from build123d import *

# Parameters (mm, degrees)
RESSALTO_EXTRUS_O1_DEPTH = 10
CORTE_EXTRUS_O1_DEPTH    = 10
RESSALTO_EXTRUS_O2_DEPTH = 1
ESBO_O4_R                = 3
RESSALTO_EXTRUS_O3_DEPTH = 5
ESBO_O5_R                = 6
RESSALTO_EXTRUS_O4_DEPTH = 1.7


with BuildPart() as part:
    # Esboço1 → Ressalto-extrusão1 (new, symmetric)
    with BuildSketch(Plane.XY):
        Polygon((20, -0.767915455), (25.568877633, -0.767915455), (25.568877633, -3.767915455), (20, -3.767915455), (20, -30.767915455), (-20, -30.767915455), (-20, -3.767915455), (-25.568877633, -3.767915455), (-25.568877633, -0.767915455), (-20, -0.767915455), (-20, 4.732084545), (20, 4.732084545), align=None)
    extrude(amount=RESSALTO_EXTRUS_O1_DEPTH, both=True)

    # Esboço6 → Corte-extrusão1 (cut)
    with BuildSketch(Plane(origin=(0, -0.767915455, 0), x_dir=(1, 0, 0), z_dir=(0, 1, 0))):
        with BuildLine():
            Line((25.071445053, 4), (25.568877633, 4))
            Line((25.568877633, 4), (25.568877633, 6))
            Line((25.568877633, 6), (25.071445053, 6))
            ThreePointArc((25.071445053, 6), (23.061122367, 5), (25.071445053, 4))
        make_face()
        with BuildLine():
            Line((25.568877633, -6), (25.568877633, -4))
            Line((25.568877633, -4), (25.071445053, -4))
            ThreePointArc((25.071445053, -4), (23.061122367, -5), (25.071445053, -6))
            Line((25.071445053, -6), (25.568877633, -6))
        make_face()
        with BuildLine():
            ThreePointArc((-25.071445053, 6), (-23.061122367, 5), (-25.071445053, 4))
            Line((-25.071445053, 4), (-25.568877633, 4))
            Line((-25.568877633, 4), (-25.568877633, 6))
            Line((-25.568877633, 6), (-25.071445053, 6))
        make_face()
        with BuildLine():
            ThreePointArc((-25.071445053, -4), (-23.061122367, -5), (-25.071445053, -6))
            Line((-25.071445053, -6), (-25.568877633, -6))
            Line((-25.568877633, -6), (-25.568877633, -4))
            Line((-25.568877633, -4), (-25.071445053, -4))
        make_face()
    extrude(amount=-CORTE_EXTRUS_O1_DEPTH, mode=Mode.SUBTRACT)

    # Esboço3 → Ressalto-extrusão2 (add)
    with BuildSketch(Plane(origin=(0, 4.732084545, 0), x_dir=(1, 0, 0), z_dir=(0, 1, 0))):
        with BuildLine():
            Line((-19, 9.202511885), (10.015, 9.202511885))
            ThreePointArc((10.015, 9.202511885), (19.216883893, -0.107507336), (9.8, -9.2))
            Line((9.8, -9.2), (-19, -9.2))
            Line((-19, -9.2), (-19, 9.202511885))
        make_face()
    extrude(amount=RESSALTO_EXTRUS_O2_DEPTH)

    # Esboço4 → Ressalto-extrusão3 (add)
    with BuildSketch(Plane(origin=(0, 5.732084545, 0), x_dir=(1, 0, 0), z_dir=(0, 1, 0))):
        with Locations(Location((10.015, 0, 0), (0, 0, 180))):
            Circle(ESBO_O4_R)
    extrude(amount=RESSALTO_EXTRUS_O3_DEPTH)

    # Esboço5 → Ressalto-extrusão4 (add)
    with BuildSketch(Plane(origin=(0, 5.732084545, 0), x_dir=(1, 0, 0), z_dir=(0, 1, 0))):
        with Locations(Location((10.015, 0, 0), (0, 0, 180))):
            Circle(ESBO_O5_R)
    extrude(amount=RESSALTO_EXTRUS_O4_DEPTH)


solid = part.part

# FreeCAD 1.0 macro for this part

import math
import FreeCAD as App
import Part
import Sketcher
Q = App.Units.Quantity

doc = App.newDocument("Part")
body = doc.addObject("PartDesign::Body", "Body")

sketch1 = doc.addObject("Sketcher::SketchObject", "Sketch")
body.addObject(sketch1)
sketch1.AttachmentSupport = (doc.XY_Plane, [""])
sketch1.MapMode = "FlatFace"
sketch1.addGeometry([
    Part.LineSegment(App.Vector(25.6, -0.8, 0), App.Vector(20, -0.8, 0)),
    Part.LineSegment(App.Vector(20, -0.8, 0), App.Vector(20, 4.7, 0)),
    Part.LineSegment(App.Vector(20, 4.7, 0), App.Vector(-20, 4.7, 0)),
    Part.LineSegment(App.Vector(-20, 4.7, 0), App.Vector(-20, -0.8, 0)),
    Part.LineSegment(App.Vector(-20, -0.8, 0), App.Vector(-25.6, -0.8, 0)),
    Part.LineSegment(App.Vector(-25.6, -0.8, 0), App.Vector(-25.6, -3.8, 0)),
    Part.LineSegment(App.Vector(-25.6, -3.8, 0), App.Vector(-20, -3.8, 0)),
    Part.LineSegment(App.Vector(-20, -3.8, 0), App.Vector(-20, -30.8, 0)),
    Part.LineSegment(App.Vector(-20, -30.8, 0), App.Vector(20, -30.8, 0)),
    Part.LineSegment(App.Vector(20, -30.8, 0), App.Vector(20, -3.8, 0)),
    Part.LineSegment(App.Vector(20, -3.8, 0), App.Vector(25.6, -3.8, 0)),
    Part.LineSegment(App.Vector(25.6, -3.8, 0), App.Vector(25.6, -0.8, 0)),
], False)
sketch1.addConstraint([
    Sketcher.Constraint("Coincident", 0, 2, 1, 1),
    Sketcher.Constraint("Coincident", 1, 2, 2, 1),
    Sketcher.Constraint("Coincident", 2, 2, 3, 1),
    Sketcher.Constraint("Coincident", 3, 2, 4, 1),
    Sketcher.Constraint("Coincident", 4, 2, 5, 1),
    Sketcher.Constraint("Coincident", 5, 2, 6, 1),
    Sketcher.Constraint("Coincident", 6, 2, 7, 1),
    Sketcher.Constraint("Coincident", 7, 2, 8, 1),
    Sketcher.Constraint("Coincident", 8, 2, 9, 1),
    Sketcher.Constraint("Coincident", 9, 2, 10, 1),
    Sketcher.Constraint("Coincident", 10, 2, 11, 1),
    Sketcher.Constraint("Coincident", 11, 2, 0, 1),
    Sketcher.Constraint("Horizontal", 0),
    Sketcher.Constraint("Vertical", 1),
    Sketcher.Constraint("Horizontal", 2),
    Sketcher.Constraint("Vertical", 3),
    Sketcher.Constraint("Horizontal", 4),
    Sketcher.Constraint("Vertical", 5),
    Sketcher.Constraint("Horizontal", 6),
    Sketcher.Constraint("Vertical", 7),
    Sketcher.Constraint("Horizontal", 8),
    Sketcher.Constraint("Vertical", 9),
    Sketcher.Constraint("Horizontal", 10),
    Sketcher.Constraint("Vertical", 11),
    Sketcher.Constraint("Symmetric", 0, 2, 3, 2, -2),
    Sketcher.Constraint("Symmetric", 6, 2, 9, 2, -2),
    Sketcher.Constraint("Vertical", 3, 2, 6, 2),
    Sketcher.Constraint("Equal", 0, 4),
    Sketcher.Constraint("DistanceX", 2, 2, 2, 1, Q("40 mm")),
    Sketcher.Constraint("DistanceY", 5, 2, 5, 1, Q("3 mm")),
    Sketcher.Constraint("DistanceY", 7, 2, 7, 1, Q("27 mm")),
    Sketcher.Constraint("DistanceY", 1, 1, 1, 2, Q("5.5 mm")),
    Sketcher.Constraint("DistanceX", 0, 2, 0, 1, Q("5.568878 mm")),
    Sketcher.Constraint("DistanceY", 0, 2, -1, 1, Q("0.767915 mm")),
])
pad1 = doc.addObject("PartDesign::Pad", "Pad")
body.addObject(pad1)
pad1.Profile = sketch1
pad1.Length = 20
pad1.Midplane = True

sketch2 = doc.addObject("Sketcher::SketchObject", "Sketch001")
body.addObject(sketch2)
sketch2.AttachmentSupport = (doc.XZ_Plane, [""])
sketch2.MapMode = "FlatFace"
sketch2.AttachmentOffset = App.Placement(App.Vector(0, 0, 0.767915), App.Rotation())
sketch2.addGeometry([
    Part.LineSegment(App.Vector(25.07, -4, 0), App.Vector(25.57, -4, 0)),
    Part.LineSegment(App.Vector(25.57, -4, 0), App.Vector(25.57, -6, 0)),
    Part.LineSegment(App.Vector(25.57, -6, 0), App.Vector(25.07, -6, 0)),
    Part.ArcOfCircle(Part.Circle(App.Vector(24.32, -5, 0), App.Vector(0, 0, 1), 1.25), math.radians(53), math.radians(307)),
    Part.LineSegment(App.Vector(25.57, 6, 0), App.Vector(25.57, 4, 0)),
    Part.LineSegment(App.Vector(25.57, 4, 0), App.Vector(25.07, 4, 0)),
    Part.ArcOfCircle(Part.Circle(App.Vector(24.32, 5, 0), App.Vector(0, 0, 1), 1.25), math.radians(53), math.radians(307)),
    Part.LineSegment(App.Vector(25.07, 6, 0), App.Vector(25.57, 6, 0)),
    Part.ArcOfCircle(Part.Circle(App.Vector(-24.32, -5, 0), App.Vector(0, 0, 1), 1.25), math.radians(-127), math.radians(127)),
    Part.LineSegment(App.Vector(-25.07, -6, 0), App.Vector(-25.57, -6, 0)),
    Part.LineSegment(App.Vector(-25.57, -6, 0), App.Vector(-25.57, -4, 0)),
    Part.LineSegment(App.Vector(-25.57, -4, 0), App.Vector(-25.07, -4, 0)),
    Part.ArcOfCircle(Part.Circle(App.Vector(-24.32, 5, 0), App.Vector(0, 0, 1), 1.25), math.radians(-127), math.radians(127)),
    Part.LineSegment(App.Vector(-25.07, 4, 0), App.Vector(-25.57, 4, 0)),
    Part.LineSegment(App.Vector(-25.57, 4, 0), App.Vector(-25.57, 6, 0)),
    Part.LineSegment(App.Vector(-25.57, 6, 0), App.Vector(-25.07, 6, 0)),
], False)
sketch2.addConstraint([
    Sketcher.Constraint("Coincident", 0, 2, 1, 1),
    Sketcher.Constraint("Coincident", 1, 2, 2, 1),
    Sketcher.Constraint("Coincident", 2, 2, 3, 2),
    Sketcher.Constraint("Coincident", 3, 1, 0, 1),
    Sketcher.Constraint("Coincident", 4, 2, 5, 1),
    Sketcher.Constraint("Coincident", 5, 2, 6, 2),
    Sketcher.Constraint("Coincident", 6, 1, 7, 1),
    Sketcher.Constraint("Coincident", 7, 2, 4, 1),
    Sketcher.Constraint("Coincident", 8, 1, 9, 1),
    Sketcher.Constraint("Coincident", 9, 2, 10, 1),
    Sketcher.Constraint("Coincident", 10, 2, 11, 1),
    Sketcher.Constraint("Coincident", 11, 2, 8, 2),
    Sketcher.Constraint("Coincident", 12, 1, 13, 1),
    Sketcher.Constraint("Coincident", 13, 2, 14, 1),
    Sketcher.Constraint("Coincident", 14, 2, 15, 1),
    Sketcher.Constraint("Coincident", 15, 2, 12, 2),
    Sketcher.Constraint("Horizontal", 0),
    Sketcher.Constraint("Vertical", 1),
    Sketcher.Constraint("Horizontal", 2),
    Sketcher.Constraint("Vertical", 4),
    Sketcher.Constraint("Horizontal", 5),
    Sketcher.Constraint("Horizontal", 7),
    Sketcher.Constraint("Horizontal", 9),
    Sketcher.Constraint("Vertical", 10),
    Sketcher.Constraint("Horizontal", 11),
    Sketcher.Constraint("Horizontal", 13),
    Sketcher.Constraint("Vertical", 14),
    Sketcher.Constraint("Horizontal", 15),
    Sketcher.Constraint("Equal", 3, 6),
    Sketcher.Constraint("Equal", 6, 8),
    Sketcher.Constraint("Equal", 8, 12),
    Sketcher.Constraint("Symmetric", 6, 3, 8, 3, -1, 1),
    Sketcher.Constraint("Symmetric", 3, 3, 12, 3, -1, 1),
    Sketcher.Constraint("Symmetric", 7, 2, 9, 2, -1, 1),
    Sketcher.Constraint("Symmetric", 0, 2, 13, 2, -1, 1),
    Sketcher.Constraint("Symmetric", 3, 3, 8, 3, -2),
    Sketcher.Constraint("Symmetric", 1, 2, 9, 2, -2),
    Sketcher.Constraint("Horizontal", 3, 1, 10, 2),
    Sketcher.Constraint("Horizontal", 5, 2, 12, 1),
    Sketcher.Constraint("Horizontal", 7, 2, 14, 2),
    Sketcher.Constraint("Vertical", 2, 2, 3, 1),
    Sketcher.Constraint("DistanceY", 1, 2, 1, 1, Q("2 mm")),
    Sketcher.Constraint("DistanceY", 3, 3, -1, 1, Q("5 mm")),
    Sketcher.Constraint("DistanceX", 8, 3, 3, 3, Q("48.63 mm")),
    Sketcher.Constraint("Radius", 3, Q("1.253878 mm")),
    Sketcher.Constraint("DistanceX", 0, 1, 0, 2, Q("0.497433 mm")),
])
pocket1 = doc.addObject("PartDesign::Pocket", "Pocket")
body.addObject(pocket1)
pocket1.Profile = sketch2
pocket1.Length = 10
pocket1.Reversed = True

sketch3 = doc.addObject("Sketcher::SketchObject", "Sketch002")
body.addObject(sketch3)
sketch3.AttachmentSupport = (doc.XZ_Plane, [""])
sketch3.MapMode = "FlatFace"
sketch3.AttachmentOffset = App.Placement(App.Vector(0, 0, -4.732085), App.Rotation())
sketch3.addGeometry([
    Part.LineSegment(App.Vector(10, -9, 0), App.Vector(-19, -9, 0)),
    Part.LineSegment(App.Vector(-19, -9, 0), App.Vector(-19, 9, 0)),
    Part.LineSegment(App.Vector(-19, 9, 0), App.Vector(10, 9, 0)),
    Part.ArcOfCircle(Part.Circle(App.Vector(10, 0, 0), App.Vector(0, 0, 1), 9), math.radians(-90), math.radians(91)),
], False)
sketch3.addConstraint([
    Sketcher.Constraint("Coincident", 0, 2, 1, 1),
    Sketcher.Constraint("Coincident", 1, 2, 2, 1),
    Sketcher.Constraint("Coincident", 2, 2, 3, 2),
    Sketcher.Constraint("Tangent", 3, 1, 0, 1),
    Sketcher.Constraint("Horizontal", 0),
    Sketcher.Constraint("Vertical", 1),
    Sketcher.Constraint("Horizontal", 2),
    Sketcher.Constraint("PointOnObject", 3, 3, -1),
    Sketcher.Constraint("DistanceX", 2, 1, 2, 2, Q("28.8 mm")),
    Sketcher.Constraint("DistanceX", 0, 2, -1, 1, Q("19 mm")),
    Sketcher.Constraint("DistanceY", -1, 1, 1, 2, Q("9.2 mm")),
    Sketcher.Constraint("DistanceX", 0, 2, 0, 1, Q("29.015 mm")),
])
pad2 = doc.addObject("PartDesign::Pad", "Pad001")
body.addObject(pad2)
pad2.Profile = sketch3
pad2.Length = 1
pad2.Reversed = True

sketch4 = doc.addObject("Sketcher::SketchObject", "Sketch003")
body.addObject(sketch4)
sketch4.AttachmentSupport = (doc.XZ_Plane, [""])
sketch4.MapMode = "FlatFace"
sketch4.AttachmentOffset = App.Placement(App.Vector(0, 0, -5.732085), App.Rotation())
sketch4.addGeometry(Part.Circle(App.Vector(10, 0, 0), App.Vector(0, 0, 1), 3), False)
sketch4.addConstraint([
    Sketcher.Constraint("PointOnObject", 0, 3, -1),
    Sketcher.Constraint("Diameter", 0, Q("6 mm")),
    Sketcher.Constraint("DistanceX", -1, 1, 0, 3, Q("10.015 mm")),
])
pad3 = doc.addObject("PartDesign::Pad", "Pad002")
body.addObject(pad3)
pad3.Profile = sketch4
pad3.Length = 5
pad3.Reversed = True

sketch5 = doc.addObject("Sketcher::SketchObject", "Sketch004")
body.addObject(sketch5)
sketch5.AttachmentSupport = (doc.XZ_Plane, [""])
sketch5.MapMode = "FlatFace"
sketch5.AttachmentOffset = App.Placement(App.Vector(0, 0, -5.732085), App.Rotation())
sketch5.addGeometry(Part.Circle(App.Vector(10, 0, 0), App.Vector(0, 0, 1), 6), False)
sketch5.addConstraint([
    Sketcher.Constraint("PointOnObject", 0, 3, -1),
    Sketcher.Constraint("Diameter", 0, Q("12 mm")),
    Sketcher.Constraint("DistanceX", -1, 1, 0, 3, Q("10.015 mm")),
])
pad4 = doc.addObject("PartDesign::Pad", "Pad003")
body.addObject(pad4)
pad4.Profile = sketch5
pad4.Length = 1.7
pad4.Reversed = True

doc.recompute()
